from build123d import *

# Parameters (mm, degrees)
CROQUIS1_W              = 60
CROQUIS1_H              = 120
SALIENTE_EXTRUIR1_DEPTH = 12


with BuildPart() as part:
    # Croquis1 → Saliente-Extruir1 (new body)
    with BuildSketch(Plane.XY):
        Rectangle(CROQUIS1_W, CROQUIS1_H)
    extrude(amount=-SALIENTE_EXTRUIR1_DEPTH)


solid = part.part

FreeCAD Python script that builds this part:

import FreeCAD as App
import Part
import Sketcher
Q = App.Units.Quantity


def add_polygon(sketch, points):
    """Adds a closed chain of lines whose ends are joined by coincident constraints."""
    first, n = sketch.GeometryCount, len(points)
    for a, b in zip(points, points[1:] + points[:1]):
        sketch.addGeometry(Part.LineSegment(App.Vector(*a, 0), App.Vector(*b, 0)), False)
    for i in range(n):
        sketch.addConstraint(Sketcher.Constraint("Coincident", first + i, 2, first + (i + 1) % n, 1))

doc = App.newDocument("Part")
params = doc.addObject("Spreadsheet::Sheet", "Params")
for row, (alias, value) in enumerate([
    ("sketch1_width", "60 mm"),
    ("sketch1_height", "120 mm"),
    ("pad1_length", "12 mm"),
], start=1):
    params.set(f"A{row}", alias)
    params.set(f"B{row}", "=" + value)
    params.setAlias(f"B{row}", alias)

body = doc.addObject("PartDesign::Body", "Body")

# Sketch on XY plane
sketch1 = body.newObject("Sketcher::SketchObject", "Sketch")
sketch1.AttachmentSupport = (doc.getObject("XY_Plane"), [""])
sketch1.MapMode = "FlatFace"
add_polygon(sketch1, [(-30, 60), (-30, -60), (30, -60), (30, 60)])  # lines 0-3
sketch1.addConstraint([
    Sketcher.Constraint("Vertical", 0),
    Sketcher.Constraint("Horizontal", 1),
    Sketcher.Constraint("Vertical", 2),
    Sketcher.Constraint("Horizontal", 3),
    Sketcher.Constraint("Symmetric", 0, 2, 2, 2, -1, 1),
    Sketcher.Constraint("DistanceX", 1, 1, 1, 2, Q("60 mm")),
    Sketcher.Constraint("DistanceY", 0, 2, 0, 1, Q("120 mm")),
])
sketch1.setExpression("Constraints[9]", "Params.sketch1_width")
sketch1.setExpression("Constraints[10]", "Params.sketch1_height")
pad1 = body.newObject("PartDesign::Pad", "Pad")
pad1.Profile = sketch1
pad1.setExpression("Length", "Params.pad1_length")
pad1.Reversed = True

doc.recompute()
